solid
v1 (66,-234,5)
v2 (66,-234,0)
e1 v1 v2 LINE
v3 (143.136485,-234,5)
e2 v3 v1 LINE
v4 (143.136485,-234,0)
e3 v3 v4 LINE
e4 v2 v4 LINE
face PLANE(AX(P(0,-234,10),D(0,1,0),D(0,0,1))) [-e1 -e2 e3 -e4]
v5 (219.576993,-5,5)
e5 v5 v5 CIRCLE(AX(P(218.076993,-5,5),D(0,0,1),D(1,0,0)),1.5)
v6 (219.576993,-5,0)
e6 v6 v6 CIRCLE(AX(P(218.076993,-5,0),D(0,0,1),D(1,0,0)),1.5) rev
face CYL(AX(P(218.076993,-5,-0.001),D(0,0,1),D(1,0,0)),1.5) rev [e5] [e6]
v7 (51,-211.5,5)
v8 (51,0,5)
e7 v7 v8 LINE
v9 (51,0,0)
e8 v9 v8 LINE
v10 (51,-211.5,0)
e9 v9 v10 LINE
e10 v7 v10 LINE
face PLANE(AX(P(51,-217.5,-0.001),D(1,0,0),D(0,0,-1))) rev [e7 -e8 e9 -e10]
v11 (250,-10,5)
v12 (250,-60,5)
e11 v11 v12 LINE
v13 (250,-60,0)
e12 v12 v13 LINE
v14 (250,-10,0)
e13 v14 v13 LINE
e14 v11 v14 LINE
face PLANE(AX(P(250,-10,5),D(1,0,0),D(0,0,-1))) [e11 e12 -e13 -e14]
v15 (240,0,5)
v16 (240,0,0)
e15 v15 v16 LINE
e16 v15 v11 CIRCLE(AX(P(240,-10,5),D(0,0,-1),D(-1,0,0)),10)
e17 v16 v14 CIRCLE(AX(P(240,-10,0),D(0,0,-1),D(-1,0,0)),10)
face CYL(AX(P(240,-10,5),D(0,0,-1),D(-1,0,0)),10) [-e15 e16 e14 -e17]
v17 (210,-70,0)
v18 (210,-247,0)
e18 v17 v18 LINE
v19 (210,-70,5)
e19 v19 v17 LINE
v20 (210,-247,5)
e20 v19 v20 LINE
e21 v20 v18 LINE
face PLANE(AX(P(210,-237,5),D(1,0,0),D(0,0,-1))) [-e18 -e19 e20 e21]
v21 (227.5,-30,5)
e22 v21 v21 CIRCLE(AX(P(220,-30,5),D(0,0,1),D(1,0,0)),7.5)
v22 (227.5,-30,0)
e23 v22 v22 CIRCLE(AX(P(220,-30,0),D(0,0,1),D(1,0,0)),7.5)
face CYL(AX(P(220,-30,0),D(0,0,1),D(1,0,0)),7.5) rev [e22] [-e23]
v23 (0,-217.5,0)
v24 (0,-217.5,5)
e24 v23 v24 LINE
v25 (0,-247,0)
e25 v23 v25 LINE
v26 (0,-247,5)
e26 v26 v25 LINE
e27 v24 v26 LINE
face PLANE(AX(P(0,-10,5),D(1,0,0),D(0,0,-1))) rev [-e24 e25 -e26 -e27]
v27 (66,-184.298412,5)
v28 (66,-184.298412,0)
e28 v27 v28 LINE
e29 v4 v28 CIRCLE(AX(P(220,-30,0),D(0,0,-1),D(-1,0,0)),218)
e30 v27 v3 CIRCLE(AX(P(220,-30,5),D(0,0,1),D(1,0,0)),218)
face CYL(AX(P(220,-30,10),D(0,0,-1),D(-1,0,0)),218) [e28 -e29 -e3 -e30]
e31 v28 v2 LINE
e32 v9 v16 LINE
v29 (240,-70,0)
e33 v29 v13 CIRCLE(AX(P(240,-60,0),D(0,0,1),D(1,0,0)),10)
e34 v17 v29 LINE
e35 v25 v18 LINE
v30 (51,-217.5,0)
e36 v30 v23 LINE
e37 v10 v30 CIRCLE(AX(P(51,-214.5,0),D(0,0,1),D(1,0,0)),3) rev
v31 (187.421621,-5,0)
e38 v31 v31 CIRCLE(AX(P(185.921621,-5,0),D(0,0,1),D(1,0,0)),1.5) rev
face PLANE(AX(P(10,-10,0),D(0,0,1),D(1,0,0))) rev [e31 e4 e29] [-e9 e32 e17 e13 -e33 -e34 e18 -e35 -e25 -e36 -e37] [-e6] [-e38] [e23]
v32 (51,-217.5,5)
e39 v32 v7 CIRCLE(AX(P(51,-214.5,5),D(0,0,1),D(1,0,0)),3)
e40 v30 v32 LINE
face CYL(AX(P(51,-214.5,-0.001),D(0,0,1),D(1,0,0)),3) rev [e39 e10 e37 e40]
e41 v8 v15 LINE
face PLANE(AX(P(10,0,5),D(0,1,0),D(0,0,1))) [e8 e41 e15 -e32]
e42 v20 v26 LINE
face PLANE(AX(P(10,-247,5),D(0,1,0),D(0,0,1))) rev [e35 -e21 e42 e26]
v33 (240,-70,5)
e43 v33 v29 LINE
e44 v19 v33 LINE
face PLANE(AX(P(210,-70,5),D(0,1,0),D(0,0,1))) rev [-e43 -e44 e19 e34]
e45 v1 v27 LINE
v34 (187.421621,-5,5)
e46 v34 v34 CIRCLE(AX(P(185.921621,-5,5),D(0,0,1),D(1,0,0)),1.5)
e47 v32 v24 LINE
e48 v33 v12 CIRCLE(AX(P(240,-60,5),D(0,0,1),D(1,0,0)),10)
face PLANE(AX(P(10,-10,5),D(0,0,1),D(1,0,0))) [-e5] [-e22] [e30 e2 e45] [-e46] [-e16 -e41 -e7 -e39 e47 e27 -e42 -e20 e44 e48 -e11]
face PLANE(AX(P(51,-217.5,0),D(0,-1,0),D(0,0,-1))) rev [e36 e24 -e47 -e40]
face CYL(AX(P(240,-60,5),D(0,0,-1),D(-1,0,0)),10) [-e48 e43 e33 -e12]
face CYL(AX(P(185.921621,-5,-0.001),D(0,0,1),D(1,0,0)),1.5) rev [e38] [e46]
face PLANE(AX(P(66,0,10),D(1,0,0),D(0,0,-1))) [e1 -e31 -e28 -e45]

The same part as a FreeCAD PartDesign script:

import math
import FreeCAD as App
import Part
import Sketcher

V = App.Vector


def add_polygon(sketch, points):
    """Adds a closed chain of lines whose ends are joined by coincident constraints."""
    first, n = sketch.GeometryCount, len(points)
    for a, b in zip(points, points[1:] + points[:1]):
        sketch.addGeometry(Part.LineSegment(App.Vector(*a, 0), App.Vector(*b, 0)), False)
    for i in range(n):
        sketch.addConstraint(Sketcher.Constraint("Coincident", first + i, 2, first + (i + 1) % n, 1))

doc = App.newDocument("Part")
params = doc.addObject("Spreadsheet::Sheet", "Params")
for row, (alias, value) in enumerate([
    ("sketch1_radius", "10 mm"),
    ("sketch1_width", "30 mm"),
    ("sketch1_width2", "230 mm"),
    ("sketch1_height", "177 mm"),
    ("sketch1_height2", "50 mm"),
    ("pad1_length", "5 mm"),
    ("sketch2_diameter", "15 mm"),
    ("pocket1_length", "5 mm"),
    ("sketch3_width", "6 mm"),
    ("sketch3_height", "5 mm"),
    ("pocket2_length", "51 mm"),
    ("sketch4_radius", "3 mm"),
    ("sketch5_diameter", "3 mm"),
    ("sketch6_diameter", "3 mm"),
    ("sketch7_width", "51 mm"),
    ("sketch7_height", "217.5 mm"),
    ("sketch8_radius", "218 mm"),
    ("pocket7_length", "10 mm"),
], start=1):
    params.set(f"A{row}", alias)
    params.set(f"B{row}", "=" + value)
    params.setAlias(f"B{row}", alias)

body = doc.addObject("PartDesign::Body", "Body")

# Sketch on XY plane
sketch1 = doc.addObject("Sketcher::SketchObject", "Sketch")
body.addObject(sketch1)
sketch1.AttachmentSupport = (doc.XY_Plane, [""])
sketch1.MapMode = "FlatFace"
sketch1.addGeometry(Part.LineSegment(V(210, -247, 0), V(210, -70, 0)), False)
sketch1.addGeometry(Part.LineSegment(V(210, -70, 0), V(240, -70, 0)), False)
sketch1.addGeometry(Part.ArcOfCircle(Part.Circle(V(240, -60, 0), V(0, 0, 1), 10), math.radians(-90), math.radians(0)), False)
sketch1.addGeometry(Part.LineSegment(V(250, -60, 0), V(250, -10, 0)), False)
sketch1.addGeometry(Part.ArcOfCircle(Part.Circle(V(240, -10, 0), V(0, 0, 1), 10), math.radians(0), math.radians(90)), False)
sketch1.addGeometry(Part.LineSegment(V(240, 0, 0), V(10, 0, 0)), False)
sketch1.addGeometry(Part.ArcOfCircle(Part.Circle(V(10, -10, 0), V(0, 0, 1), 10), math.radians(90), math.radians(180)), False)
sketch1.addGeometry(Part.LineSegment(V(0, -10, 0), V(0, -247, 0)), False)
sketch1.addGeometry(Part.LineSegment(V(0, -247, 0), V(210, -247, 0)), False)
sketch1.addConstraint(Sketcher.Constraint("Coincident", 0, 2, 1, 1))
sketch1.addConstraint(Sketcher.Constraint("Tangent", 1, 2, 2, 1))
sketch1.addConstraint(Sketcher.Constraint("Tangent", 2, 2, 3, 1))
sketch1.addConstraint(Sketcher.Constraint("Tangent", 3, 2, 4, 1))
sketch1.addConstraint(Sketcher.Constraint("Tangent", 4, 2, 5, 1))
sketch1.addConstraint(Sketcher.Constraint("Tangent", 5, 2, 6, 1))
sketch1.addConstraint(Sketcher.Constraint("Tangent", 6, 2, 7, 1))
sketch1.addConstraint(Sketcher.Constraint("Coincident", 7, 2, 8, 1))
sketch1.addConstraint(Sketcher.Constraint("Coincident", 8, 2, 0, 1))
sketch1.addConstraint(Sketcher.Constraint("Vertical", 0))
sketch1.addConstraint(Sketcher.Constraint("Horizontal", 1))
sketch1.addConstraint(Sketcher.Constraint("Vertical", 3))
sketch1.addConstraint(Sketcher.Constraint("Horizontal", 5))
sketch1.addConstraint(Sketcher.Constraint("Vertical", 7))
sketch1.addConstraint(Sketcher.Constraint("Horizontal", 8))
sketch1.addConstraint(Sketcher.Constraint("Equal", 2, 4))
sketch1.addConstraint(Sketcher.Constraint("Equal", 4, 6))
sketch1.addConstraint(Sketcher.Constraint("PointOnObject", 4, 2, -1))
sketch1.addConstraint(Sketcher.Constraint("PointOnObject", 6, 2, -2))
sketch1.addConstraint(Sketcher.Constraint("Radius", 2, 10.0))
sketch1.addConstraint(Sketcher.Constraint("DistanceX", 1, 1, 1, 2, 30.0))
sketch1.addConstraint(Sketcher.Constraint("DistanceX", 5, 2, 5, 1, 230.0))
sketch1.addConstraint(Sketcher.Constraint("DistanceY", 0, 1, 0, 2, 177.0))
sketch1.addConstraint(Sketcher.Constraint("DistanceY", 3, 1, 3, 2, 50.0))
sketch1.setExpression("Constraints[19]", "Params.sketch1_radius")
sketch1.setExpression("Constraints[20]", "Params.sketch1_width")
sketch1.setExpression("Constraints[21]", "Params.sketch1_width2")
sketch1.setExpression("Constraints[22]", "Params.sketch1_height")
sketch1.setExpression("Constraints[23]", "Params.sketch1_height2")
pad1 = doc.addObject("PartDesign::Pad", "Pad")
body.addObject(pad1)
pad1.Profile = sketch1
pad1.setExpression("Length", "Params.pad1_length")

# Sketch on XY plane
sketch2 = doc.addObject("Sketcher::SketchObject", "Sketch001")
body.addObject(sketch2)
sketch2.AttachmentSupport = (doc.XY_Plane, [""])
sketch2.MapMode = "FlatFace"
sketch2.AttachmentOffset = App.Placement(V(0, 0, 5), App.Rotation())
sketch2.addGeometry(Part.Circle(V(220, -30, 0), V(0, 0, 1), 8), False)
sketch2.addConstraint(Sketcher.Constraint("Diameter", 0, 15.0))
sketch2.addConstraint(Sketcher.Constraint("DistanceX", -1, 1, 0, 3, 220.0))
sketch2.addConstraint(Sketcher.Constraint("DistanceY", 0, 3, -1, 1, 30.0))
sketch2.setExpression("Constraints[0]", "Params.sketch2_diameter")
pocket1 = doc.addObject("PartDesign::Pocket", "Pocket")
body.addObject(pocket1)
pocket1.Profile = sketch2
pocket1.setExpression("Length", "Params.pocket1_length")

# Sketch on YZ plane
sketch3 = doc.addObject("Sketcher::SketchObject", "Sketch002")
body.addObject(sketch3)
sketch3.AttachmentSupport = (doc.YZ_Plane, [""])
sketch3.MapMode = "FlatFace"
add_polygon(sketch3, [(-212, 0), (-218, 0), (-218, 5), (-212, 5)])  # lines 0-3
sketch3.addConstraint(Sketcher.Constraint("Horizontal", 0))
sketch3.addConstraint(Sketcher.Constraint("Vertical", 1))
sketch3.addConstraint(Sketcher.Constraint("Horizontal", 2))
sketch3.addConstraint(Sketcher.Constraint("Vertical", 3))
sketch3.addConstraint(Sketcher.Constraint("PointOnObject", 0, 2, -1))
sketch3.addConstraint(Sketcher.Constraint("DistanceX", 0, 2, 0, 1, 6.0))
sketch3.addConstraint(Sketcher.Constraint("DistanceY", 1, 1, 1, 2, 5.0))
sketch3.addConstraint(Sketcher.Constraint("DistanceX", 0, 2, -1, 1, 217.5))
sketch3.setExpression("Constraints[9]", "Params.sketch3_width")
sketch3.setExpression("Constraints[10]", "Params.sketch3_height")
pocket2 = doc.addObject("PartDesign::Pocket", "Pocket001")
body.addObject(pocket2)
pocket2.Profile = sketch3
pocket2.setExpression("Length", "Params.pocket2_length")
pocket2.Reversed = True

# Sketch on XY plane
sketch4 = doc.addObject("Sketcher::SketchObject", "Sketch003")
body.addObject(sketch4)
sketch4.AttachmentSupport = (doc.XY_Plane, [""])
sketch4.MapMode = "FlatFace"
sketch4.AttachmentOffset = App.Placement(V(0, 0, 5), App.Rotation())
sketch4.addGeometry(Part.LineSegment(V(51, -211.5, 0), V(51, -217.5, 0)), False)
sketch4.addGeometry(Part.ArcOfCircle(Part.Circle(V(51, -214.5, 0), V(0, 0, 1), 3), math.radians(-90), math.radians(90)), False)
sketch4.addConstraint(Sketcher.Constraint("Coincident", 0, 1, 1, 2))
sketch4.addConstraint(Sketcher.Constraint("Coincident", 1, 1, 0, 2))
sketch4.addConstraint(Sketcher.Constraint("Vertical", 0))
sketch4.addConstraint(Sketcher.Constraint("Vertical", 1, 3, 0, 1))
sketch4.addConstraint(Sketcher.Constraint("Radius", 1, 3.0))
sketch4.addConstraint(Sketcher.Constraint("DistanceX", -1, 1, 1, 3, 51.0))
sketch4.addConstraint(Sketcher.Constraint("DistanceY", 1, 3, -1, 1, 214.5))
sketch4.setExpression("Constraints[4]", "Params.sketch4_radius")
pocket3 = doc.addObject("PartDesign::Pocket", "Pocket002")
body.addObject(pocket3)
pocket3.Profile = sketch4
pocket3.Type = "UpToFirst"

# Sketch on XY plane
sketch5 = doc.addObject("Sketcher::SketchObject", "Sketch004")
body.addObject(sketch5)
sketch5.AttachmentSupport = (doc.XY_Plane, [""])
sketch5.MapMode = "FlatFace"
sketch5.AttachmentOffset = App.Placement(V(0, 0, 5), App.Rotation())
sketch5.addGeometry(Part.Circle(V(218.1, -5, 0), V(0, 0, 1), 1.5), False)
sketch5.addConstraint(Sketcher.Constraint("Diameter", 0, 3.0))
sketch5.addConstraint(Sketcher.Constraint("DistanceY", 0, 3, -1, 1, 5.0))
sketch5.addConstraint(Sketcher.Constraint("DistanceX", -1, 1, 0, 3, 218.076993))
sketch5.setExpression("Constraints[0]", "Params.sketch5_diameter")
pocket4 = doc.addObject("PartDesign::Pocket", "Pocket003")
body.addObject(pocket4)
pocket4.Profile = sketch5
pocket4.Type = "UpToFirst"

# Sketch on XY plane
sketch6 = doc.addObject("Sketcher::SketchObject", "Sketch005")
body.addObject(sketch6)
sketch6.AttachmentSupport = (doc.XY_Plane, [""])
sketch6.MapMode = "FlatFace"
sketch6.AttachmentOffset = App.Placement(V(0, 0, 5), App.Rotation())
sketch6.addGeometry(Part.Circle(V(185.9, -5, 0), V(0, 0, 1), 1.5), False)
sketch6.addConstraint(Sketcher.Constraint("Diameter", 0, 3.0))
sketch6.addConstraint(Sketcher.Constraint("DistanceY", 0, 3, -1, 1, 5.0))
sketch6.addConstraint(Sketcher.Constraint("DistanceX", -1, 1, 0, 3, 185.921621))
sketch6.setExpression("Constraints[0]", "Params.sketch6_diameter")
pocket5 = doc.addObject("PartDesign::Pocket", "Pocket004")
body.addObject(pocket5)
pocket5.Profile = sketch6
pocket5.Type = "UpToFirst"

# Sketch on XY plane
sketch7 = doc.addObject("Sketcher::SketchObject", "Sketch006")
body.addObject(sketch7)
sketch7.AttachmentSupport = (doc.XY_Plane, [""])
sketch7.MapMode = "FlatFace"
sketch7.AttachmentOffset = App.Placement(V(0, 0, 5), App.Rotation())
add_polygon(sketch7, [(0, 0), (0, -218), (51, -218), (51, 0)])  # lines 0-3
sketch7.addConstraint(Sketcher.Constraint("Vertical", 0))
sketch7.addConstraint(Sketcher.Constraint("Horizontal", 1))
sketch7.addConstraint(Sketcher.Constraint("Vertical", 2))
sketch7.addConstraint(Sketcher.Constraint("Horizontal", 3))
sketch7.addConstraint(Sketcher.Constraint("Coincident", 3, 2, -1, 1))
sketch7.addConstraint(Sketcher.Constraint("DistanceX", 1, 1, 1, 2, 51.0))
sketch7.addConstraint(Sketcher.Constraint("DistanceY", 0, 2, 0, 1, 217.5))
sketch7.setExpression("Constraints[9]", "Params.sketch7_width")
sketch7.setExpression("Constraints[10]", "Params.sketch7_height")
pocket6 = doc.addObject("PartDesign::Pocket", "Pocket005")
body.addObject(pocket6)
pocket6.Profile = sketch7
pocket6.Type = "UpToFirst"

# Sketch on XY plane
sketch8 = doc.addObject("Sketcher::SketchObject", "Sketch007")
body.addObject(sketch8)
sketch8.AttachmentSupport = (doc.XY_Plane, [""])
sketch8.MapMode = "FlatFace"
sketch8.addGeometry(Part.LineSegment(V(66, -234, 0), V(66, -184, 0)), False)
sketch8.addGeometry(Part.ArcOfCircle(Part.Circle(V(220, -30, 0), V(0, 0, 1), 218), math.radians(-135), math.radians(-111)), False)
sketch8.addGeometry(Part.LineSegment(V(143, -234, 0), V(66, -234, 0)), False)
sketch8.addConstraint(Sketcher.Constraint("Coincident", 0, 2, 1, 1))
sketch8.addConstraint(Sketcher.Constraint("Coincident", 1, 2, 2, 1))
sketch8.addConstraint(Sketcher.Constraint("Coincident", 2, 2, 0, 1))
sketch8.addConstraint(Sketcher.Constraint("Vertical", 0))
sketch8.addConstraint(Sketcher.Constraint("Horizontal", 2))
sketch8.addConstraint(Sketcher.Constraint("Radius", 1, 218.0))
sketch8.addConstraint(Sketcher.Constraint("DistanceX", -1, 1, 1, 3, 220.0))
sketch8.addConstraint(Sketcher.Constraint("DistanceY", 1, 3, -1, 1, 30.0))
sketch8.addConstraint(Sketcher.Constraint("DistanceX", -1, 1, 0, 2, 66.0))
sketch8.addConstraint(Sketcher.Constraint("DistanceY", 1, 2, -1, 1, 234.0))
sketch8.setExpression("Constraints[5]", "Params.sketch8_radius")
pocket7 = doc.addObject("PartDesign::Pocket", "Pocket006")
body.addObject(pocket7)
pocket7.Profile = sketch8
pocket7.setExpression("Length", "Params.pocket7_length")
pocket7.Reversed = True

doc.recompute()
